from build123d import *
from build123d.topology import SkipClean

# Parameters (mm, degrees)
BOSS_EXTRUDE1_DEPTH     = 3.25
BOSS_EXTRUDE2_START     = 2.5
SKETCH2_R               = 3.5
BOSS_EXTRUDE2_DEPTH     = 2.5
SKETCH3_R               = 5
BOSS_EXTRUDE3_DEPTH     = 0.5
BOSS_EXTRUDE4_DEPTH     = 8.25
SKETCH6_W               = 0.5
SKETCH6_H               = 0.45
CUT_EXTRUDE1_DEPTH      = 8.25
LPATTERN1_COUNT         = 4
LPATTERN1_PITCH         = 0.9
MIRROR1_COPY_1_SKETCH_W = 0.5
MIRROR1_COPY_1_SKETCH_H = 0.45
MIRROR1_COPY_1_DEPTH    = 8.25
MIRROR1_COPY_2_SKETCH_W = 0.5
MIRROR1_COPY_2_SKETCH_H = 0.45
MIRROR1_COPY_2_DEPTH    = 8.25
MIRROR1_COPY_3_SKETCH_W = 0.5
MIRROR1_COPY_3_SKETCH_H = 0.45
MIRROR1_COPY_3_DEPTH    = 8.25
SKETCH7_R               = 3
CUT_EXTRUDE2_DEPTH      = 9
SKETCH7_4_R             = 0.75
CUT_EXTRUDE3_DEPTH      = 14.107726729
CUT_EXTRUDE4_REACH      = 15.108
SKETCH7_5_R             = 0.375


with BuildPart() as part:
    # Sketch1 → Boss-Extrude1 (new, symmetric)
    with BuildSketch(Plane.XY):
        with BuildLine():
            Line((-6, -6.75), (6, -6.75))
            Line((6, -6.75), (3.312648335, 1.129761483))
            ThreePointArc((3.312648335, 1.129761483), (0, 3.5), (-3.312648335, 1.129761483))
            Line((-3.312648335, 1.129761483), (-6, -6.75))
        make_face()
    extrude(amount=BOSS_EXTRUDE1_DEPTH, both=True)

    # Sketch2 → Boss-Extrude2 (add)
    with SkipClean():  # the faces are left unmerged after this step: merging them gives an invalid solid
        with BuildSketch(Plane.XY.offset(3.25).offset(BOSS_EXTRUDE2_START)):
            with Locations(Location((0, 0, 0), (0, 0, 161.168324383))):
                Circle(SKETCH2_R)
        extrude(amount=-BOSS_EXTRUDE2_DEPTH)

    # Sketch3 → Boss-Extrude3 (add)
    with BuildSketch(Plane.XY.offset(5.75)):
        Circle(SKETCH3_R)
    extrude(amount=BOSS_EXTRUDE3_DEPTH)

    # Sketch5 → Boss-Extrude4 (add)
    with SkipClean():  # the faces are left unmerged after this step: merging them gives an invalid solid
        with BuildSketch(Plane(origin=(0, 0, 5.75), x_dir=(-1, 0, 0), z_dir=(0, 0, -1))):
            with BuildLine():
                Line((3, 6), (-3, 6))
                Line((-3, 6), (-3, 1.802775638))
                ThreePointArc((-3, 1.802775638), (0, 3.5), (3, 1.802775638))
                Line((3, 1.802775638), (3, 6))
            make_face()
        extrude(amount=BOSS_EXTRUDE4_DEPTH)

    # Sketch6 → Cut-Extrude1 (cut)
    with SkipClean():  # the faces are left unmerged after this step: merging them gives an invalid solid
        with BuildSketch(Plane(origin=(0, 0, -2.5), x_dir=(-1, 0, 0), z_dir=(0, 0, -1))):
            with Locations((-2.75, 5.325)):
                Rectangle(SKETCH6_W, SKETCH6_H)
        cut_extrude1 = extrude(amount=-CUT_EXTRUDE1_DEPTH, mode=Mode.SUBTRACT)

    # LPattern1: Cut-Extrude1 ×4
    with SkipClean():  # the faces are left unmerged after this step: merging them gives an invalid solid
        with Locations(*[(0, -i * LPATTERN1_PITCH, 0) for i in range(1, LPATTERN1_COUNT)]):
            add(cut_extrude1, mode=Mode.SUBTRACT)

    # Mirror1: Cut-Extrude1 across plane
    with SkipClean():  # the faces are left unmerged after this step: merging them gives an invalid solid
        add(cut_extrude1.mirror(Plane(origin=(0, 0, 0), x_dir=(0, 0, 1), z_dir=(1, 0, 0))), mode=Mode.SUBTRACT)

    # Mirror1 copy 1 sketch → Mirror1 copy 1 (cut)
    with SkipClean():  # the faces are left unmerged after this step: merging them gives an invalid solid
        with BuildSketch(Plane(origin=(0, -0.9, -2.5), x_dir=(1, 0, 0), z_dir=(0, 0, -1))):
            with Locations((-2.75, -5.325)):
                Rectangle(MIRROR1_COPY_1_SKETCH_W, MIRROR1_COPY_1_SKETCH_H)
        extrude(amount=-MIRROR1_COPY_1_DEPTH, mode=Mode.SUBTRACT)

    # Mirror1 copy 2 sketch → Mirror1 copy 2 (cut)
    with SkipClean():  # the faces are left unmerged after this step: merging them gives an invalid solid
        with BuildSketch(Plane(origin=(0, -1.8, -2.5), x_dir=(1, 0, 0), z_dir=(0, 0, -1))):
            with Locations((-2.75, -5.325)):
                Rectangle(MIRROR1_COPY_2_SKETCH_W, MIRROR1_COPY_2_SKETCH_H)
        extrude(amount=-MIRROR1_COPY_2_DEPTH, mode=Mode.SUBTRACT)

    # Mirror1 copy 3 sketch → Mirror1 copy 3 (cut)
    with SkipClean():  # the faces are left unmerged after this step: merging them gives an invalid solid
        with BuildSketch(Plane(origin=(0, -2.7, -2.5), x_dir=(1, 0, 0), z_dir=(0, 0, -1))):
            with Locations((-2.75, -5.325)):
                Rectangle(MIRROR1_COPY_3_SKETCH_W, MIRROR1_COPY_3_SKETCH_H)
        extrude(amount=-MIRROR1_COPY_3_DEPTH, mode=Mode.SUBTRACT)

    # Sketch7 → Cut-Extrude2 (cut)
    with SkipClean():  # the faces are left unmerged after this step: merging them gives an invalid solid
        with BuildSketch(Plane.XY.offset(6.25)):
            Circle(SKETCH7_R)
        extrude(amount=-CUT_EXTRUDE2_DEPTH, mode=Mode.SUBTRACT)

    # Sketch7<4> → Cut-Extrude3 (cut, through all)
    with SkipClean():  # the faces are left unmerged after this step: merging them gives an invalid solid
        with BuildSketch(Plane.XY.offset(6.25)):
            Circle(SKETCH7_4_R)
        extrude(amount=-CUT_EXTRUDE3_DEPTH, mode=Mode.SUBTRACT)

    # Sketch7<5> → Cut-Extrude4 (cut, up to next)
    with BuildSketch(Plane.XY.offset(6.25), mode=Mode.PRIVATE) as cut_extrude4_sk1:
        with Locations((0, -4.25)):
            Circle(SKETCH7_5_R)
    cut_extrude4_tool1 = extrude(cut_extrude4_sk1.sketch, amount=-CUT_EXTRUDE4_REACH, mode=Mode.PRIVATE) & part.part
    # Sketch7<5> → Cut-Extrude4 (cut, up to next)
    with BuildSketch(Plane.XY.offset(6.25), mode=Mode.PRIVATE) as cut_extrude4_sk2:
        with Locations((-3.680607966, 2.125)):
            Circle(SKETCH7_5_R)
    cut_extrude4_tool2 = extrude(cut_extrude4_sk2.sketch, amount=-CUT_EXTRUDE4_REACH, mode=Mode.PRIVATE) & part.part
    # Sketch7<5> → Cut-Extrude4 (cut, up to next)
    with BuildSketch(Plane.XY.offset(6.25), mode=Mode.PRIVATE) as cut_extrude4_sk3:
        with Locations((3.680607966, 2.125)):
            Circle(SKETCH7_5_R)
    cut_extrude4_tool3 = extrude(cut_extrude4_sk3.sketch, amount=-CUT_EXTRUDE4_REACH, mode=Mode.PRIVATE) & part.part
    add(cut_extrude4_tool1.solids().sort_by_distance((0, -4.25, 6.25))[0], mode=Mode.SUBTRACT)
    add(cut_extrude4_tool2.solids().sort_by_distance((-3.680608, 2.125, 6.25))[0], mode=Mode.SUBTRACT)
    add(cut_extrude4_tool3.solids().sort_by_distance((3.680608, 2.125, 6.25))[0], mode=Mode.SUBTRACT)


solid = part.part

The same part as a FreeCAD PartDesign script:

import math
import FreeCAD as App
import Part
import Sketcher

V = App.Vector


def add_polygon(sketch, points):
    """Adds a closed chain of lines whose ends are joined by coincident constraints."""
    first, n = sketch.GeometryCount, len(points)
    for a, b in zip(points, points[1:] + points[:1]):
        sketch.addGeometry(Part.LineSegment(App.Vector(*a, 0), App.Vector(*b, 0)), False)
    for i in range(n):
        sketch.addConstraint(Sketcher.Constraint("Coincident", first + i, 2, first + (i + 1) % n, 1))

doc = App.newDocument("Part")
body = doc.addObject("PartDesign::Body", "Body")

# Sketch on XY plane
sketch1 = doc.addObject("Sketcher::SketchObject", "Sketch")
body.addObject(sketch1)
sketch1.AttachmentSupport = (doc.XY_Plane, [""])
sketch1.MapMode = "FlatFace"
sketch1.addGeometry(Part.LineSegment(V(-6, -6.8, 0), V(6, -6.8, 0)), False)
sketch1.addGeometry(Part.LineSegment(V(6, -6.8, 0), V(3.3, 1.1, 0)), False)
sketch1.addGeometry(Part.ArcOfCircle(Part.Circle(V(0, 0, 0), V(0, 0, 1), 3.5), math.radians(19), math.radians(161)), False)
sketch1.addGeometry(Part.LineSegment(V(-3.3, 1.1, 0), V(-6, -6.8, 0)), False)
sketch1.addConstraint(Sketcher.Constraint("Coincident", 0, 2, 1, 1))
sketch1.addConstraint(Sketcher.Constraint("Tangent", 1, 2, 2, 1))
sketch1.addConstraint(Sketcher.Constraint("Tangent", 2, 2, 3, 1))
sketch1.addConstraint(Sketcher.Constraint("Coincident", 3, 2, 0, 1))
sketch1.addConstraint(Sketcher.Constraint("Horizontal", 0))
sketch1.addConstraint(Sketcher.Constraint("Coincident", 2, 3, -1, 1))
sketch1.addConstraint(Sketcher.Constraint("Horizontal", 1, 2, 2, 2))
sketch1.addConstraint(Sketcher.Constraint("Radius", 2, 3.5))
sketch1.addConstraint(Sketcher.Constraint("DistanceX", 0, 1, 0, 2, 12.0))
sketch1.addConstraint(Sketcher.Constraint("DistanceY", 0, 2, -1, 1, 6.75))
pad1 = doc.addObject("PartDesign::Pad", "Pad")
body.addObject(pad1)
pad1.Profile = sketch1
pad1.Length = 6.5
pad1.Midplane = True

# Sketch on XY plane
sketch2 = doc.addObject("Sketcher::SketchObject", "Sketch001")
body.addObject(sketch2)
sketch2.AttachmentSupport = (doc.XY_Plane, [""])
sketch2.MapMode = "FlatFace"
sketch2.AttachmentOffset = App.Placement(V(0, 0, 5.75), App.Rotation())
sketch2.addGeometry(Part.Circle(V(0, 0, 0), V(0, 0, 1), 3.5), False)
sketch2.addConstraint(Sketcher.Constraint("Coincident", 0, 3, -1, 1))
sketch2.addConstraint(Sketcher.Constraint("Diameter", 0, 7.0))
pad2 = doc.addObject("PartDesign::Pad", "Pad001")
body.addObject(pad2)
pad2.Profile = sketch2
pad2.Length = 2.5
pad2.Reversed = True

# Sketch on XY plane
sketch3 = doc.addObject("Sketcher::SketchObject", "Sketch002")
body.addObject(sketch3)
sketch3.AttachmentSupport = (doc.XY_Plane, [""])
sketch3.MapMode = "FlatFace"
sketch3.AttachmentOffset = App.Placement(V(0, 0, 5.75), App.Rotation())
sketch3.addGeometry(Part.Circle(V(0, 0, 0), V(0, 0, 1), 5), False)
sketch3.addConstraint(Sketcher.Constraint("Coincident", 0, 3, -1, 1))
sketch3.addConstraint(Sketcher.Constraint("Diameter", 0, 10.0))
pad3 = doc.addObject("PartDesign::Pad", "Pad002")
body.addObject(pad3)
pad3.Profile = sketch3
pad3.Length = 0.5

# Sketch on XY plane
sketch4 = doc.addObject("Sketcher::SketchObject", "Sketch003")
body.addObject(sketch4)
sketch4.AttachmentSupport = (doc.XY_Plane, [""])
sketch4.MapMode = "FlatFace"
sketch4.AttachmentOffset = App.Placement(V(0, 0, 5.75), App.Rotation())
sketch4.addGeometry(Part.LineSegment(V(-3, 6, 0), V(3, 6, 0)), False)
sketch4.addGeometry(Part.LineSegment(V(3, 6, 0), V(3, 1.8, 0)), False)
sketch4.addGeometry(Part.ArcOfCircle(Part.Circle(V(0, 0, 0), V(0, 0, 1), 3.5), math.radians(31), math.radians(149)), False)
sketch4.addGeometry(Part.LineSegment(V(-3, 1.8, 0), V(-3, 6, 0)), False)
sketch4.addConstraint(Sketcher.Constraint("Coincident", 0, 2, 1, 1))
sketch4.addConstraint(Sketcher.Constraint("Coincident", 1, 2, 2, 1))
sketch4.addConstraint(Sketcher.Constraint("Coincident", 2, 2, 3, 1))
sketch4.addConstraint(Sketcher.Constraint("Coincident", 3, 2, 0, 1))
sketch4.addConstraint(Sketcher.Constraint("Horizontal", 0))
sketch4.addConstraint(Sketcher.Constraint("Vertical", 1))
sketch4.addConstraint(Sketcher.Constraint("Vertical", 3))
sketch4.addConstraint(Sketcher.Constraint("Coincident", 2, 3, -1, 1))
sketch4.addConstraint(Sketcher.Constraint("Horizontal", 1, 2, 2, 2))
sketch4.addConstraint(Sketcher.Constraint("Radius", 2, 3.5))
sketch4.addConstraint(Sketcher.Constraint("DistanceX", 0, 1, 0, 2, 6.0))
sketch4.addConstraint(Sketcher.Constraint("DistanceY", -1, 1, 0, 2, 6.0))
pad4 = doc.addObject("PartDesign::Pad", "Pad003")
body.addObject(pad4)
pad4.Profile = sketch4
pad4.Length = 8.25
pad4.Reversed = True

# Sketch on XY plane
sketch5 = doc.addObject("Sketcher::SketchObject", "Sketch004")
body.addObject(sketch5)
sketch5.AttachmentSupport = (doc.XY_Plane, [""])
sketch5.MapMode = "FlatFace"
sketch5.AttachmentOffset = App.Placement(V(0, 0, -2.5), App.Rotation())
add_polygon(sketch5, [(3, 5.55), (3, 5.1), (2.5, 5.1), (2.5, 5.55)])  # lines 0-3
sketch5.addConstraint(Sketcher.Constraint("Vertical", 0))
sketch5.addConstraint(Sketcher.Constraint("Horizontal", 1))
sketch5.addConstraint(Sketcher.Constraint("Vertical", 2))
sketch5.addConstraint(Sketcher.Constraint("Horizontal", 3))
sketch5.addConstraint(Sketcher.Constraint("DistanceX", 1, 2, 1, 1, 0.5))
sketch5.addConstraint(Sketcher.Constraint("DistanceX", -1, 1, 0, 2, 3.0))
sketch5.addConstraint(Sketcher.Constraint("DistanceY", 0, 2, 0, 1, 0.45))
sketch5.addConstraint(Sketcher.Constraint("DistanceY", -1, 1, 0, 2, 5.1))
pocket1 = doc.addObject("PartDesign::Pocket", "Pocket")
body.addObject(pocket1)
pocket1.Profile = sketch5
pocket1.Length = 8.25
pocket1.Reversed = True
doc.recompute()

linearpattern = doc.addObject("PartDesign::LinearPattern", "LinearPattern")
body.addObject(linearpattern)
linearpattern.Originals = [pocket1]
linearpattern.Direction = (doc.Y_Axis, [""])
linearpattern.Mode = "offset"
linearpattern.Offset = 0.9
linearpattern.Occurrences = 4
linearpattern.Reversed = True
body.Tip = linearpattern
doc.recompute()

mirrored = doc.addObject("PartDesign::Mirrored", "Mirrored")
body.addObject(mirrored)
mirrored.Originals = [pocket1]
mirrored.MirrorPlane = (doc.YZ_Plane, [""])
body.Tip = mirrored

# Sketch on XY plane
sketch6 = doc.addObject("Sketcher::SketchObject", "Sketch005")
body.addObject(sketch6)
sketch6.AttachmentSupport = (doc.XY_Plane, [""])
sketch6.MapMode = "FlatFace"
sketch6.AttachmentOffset = App.Placement(V(0, 0, -2.5), App.Rotation())
add_polygon(sketch6, [(-3, 4.2), (-3, 4.65), (-2.5, 4.65), (-2.5, 4.2)])  # lines 0-3
sketch6.addConstraint(Sketcher.Constraint("Vertical", 0))
sketch6.addConstraint(Sketcher.Constraint("Horizontal", 1))
sketch6.addConstraint(Sketcher.Constraint("Vertical", 2))
sketch6.addConstraint(Sketcher.Constraint("Horizontal", 3))
sketch6.addConstraint(Sketcher.Constraint("DistanceX", 1, 1, 1, 2, 0.5))
sketch6.addConstraint(Sketcher.Constraint("DistanceX", 0, 2, -1, 1, 3.0))
sketch6.addConstraint(Sketcher.Constraint("DistanceY", 0, 1, 0, 2, 0.45))
sketch6.addConstraint(Sketcher.Constraint("DistanceY", -1, 1, 2, 2, 4.2))
pocket2 = doc.addObject("PartDesign::Pocket", "Pocket001")
body.addObject(pocket2)
pocket2.Profile = sketch6
pocket2.Length = 8.25
pocket2.Reversed = True

# Sketch on XY plane
sketch7 = doc.addObject("Sketcher::SketchObject", "Sketch006")
body.addObject(sketch7)
sketch7.AttachmentSupport = (doc.XY_Plane, [""])
sketch7.MapMode = "FlatFace"
sketch7.AttachmentOffset = App.Placement(V(0, 0, -2.5), App.Rotation())
add_polygon(sketch7, [(-3, 3.3), (-3, 3.75), (-2.5, 3.75), (-2.5, 3.3)])  # lines 0-3
sketch7.addConstraint(Sketcher.Constraint("Vertical", 0))
sketch7.addConstraint(Sketcher.Constraint("Horizontal", 1))
sketch7.addConstraint(Sketcher.Constraint("Vertical", 2))
sketch7.addConstraint(Sketcher.Constraint("Horizontal", 3))
sketch7.addConstraint(Sketcher.Constraint("DistanceX", 1, 1, 1, 2, 0.5))
sketch7.addConstraint(Sketcher.Constraint("DistanceX", 0, 2, -1, 1, 3.0))
sketch7.addConstraint(Sketcher.Constraint("DistanceY", 0, 1, 0, 2, 0.45))
sketch7.addConstraint(Sketcher.Constraint("DistanceY", -1, 1, 2, 2, 3.3))
pocket3 = doc.addObject("PartDesign::Pocket", "Pocket002")
body.addObject(pocket3)
pocket3.Profile = sketch7
pocket3.Length = 8.25
pocket3.Reversed = True

# Sketch on XY plane
sketch8 = doc.addObject("Sketcher::SketchObject", "Sketch007")
body.addObject(sketch8)
sketch8.AttachmentSupport = (doc.XY_Plane, [""])
sketch8.MapMode = "FlatFace"
sketch8.AttachmentOffset = App.Placement(V(0, 0, -2.5), App.Rotation())
add_polygon(sketch8, [(-3, 2.4), (-3, 2.85), (-2.5, 2.85), (-2.5, 2.4)])  # lines 0-3
sketch8.addConstraint(Sketcher.Constraint("Vertical", 0))
sketch8.addConstraint(Sketcher.Constraint("Horizontal", 1))
sketch8.addConstraint(Sketcher.Constraint("Vertical", 2))
sketch8.addConstraint(Sketcher.Constraint("Horizontal", 3))
sketch8.addConstraint(Sketcher.Constraint("DistanceX", 1, 1, 1, 2, 0.5))
sketch8.addConstraint(Sketcher.Constraint("DistanceX", 0, 2, -1, 1, 3.0))
sketch8.addConstraint(Sketcher.Constraint("DistanceY", 0, 1, 0, 2, 0.45))
sketch8.addConstraint(Sketcher.Constraint("DistanceY", -1, 1, 2, 2, 2.4))
pocket4 = doc.addObject("PartDesign::Pocket", "Pocket003")
body.addObject(pocket4)
pocket4.Profile = sketch8
pocket4.Length = 8.25
pocket4.Reversed = True

# Sketch on XY plane
sketch9 = doc.addObject("Sketcher::SketchObject", "Sketch008")
body.addObject(sketch9)
sketch9.AttachmentSupport = (doc.XY_Plane, [""])
sketch9.MapMode = "FlatFace"
sketch9.AttachmentOffset = App.Placement(V(0, 0, 6.25), App.Rotation())
sketch9.addGeometry(Part.Circle(V(0, 0, 0), V(0, 0, 1), 3), False)
sketch9.addConstraint(Sketcher.Constraint("Coincident", 0, 3, -1, 1))
sketch9.addConstraint(Sketcher.Constraint("Diameter", 0, 6.0))
pocket5 = doc.addObject("PartDesign::Pocket", "Pocket004")
body.addObject(pocket5)
pocket5.Profile = sketch9
pocket5.Length = 9

# Sketch on XY plane
sketch10 = doc.addObject("Sketcher::SketchObject", "Sketch009")
body.addObject(sketch10)
sketch10.AttachmentSupport = (doc.XY_Plane, [""])
sketch10.MapMode = "FlatFace"
sketch10.AttachmentOffset = App.Placement(V(0, 0, 6.25), App.Rotation())
sketch10.addGeometry(Part.Circle(V(0, 0, 0), V(0, 0, 1), 0.8), False)
sketch10.addConstraint(Sketcher.Constraint("Coincident", 0, 3, -1, 1))
sketch10.addConstraint(Sketcher.Constraint("Diameter", 0, 1.5))
pocket6 = doc.addObject("PartDesign::Pocket", "Pocket005")
body.addObject(pocket6)
pocket6.Profile = sketch10
pocket6.Type = "ThroughAll"

# Sketch on XY plane
sketch11 = doc.addObject("Sketcher::SketchObject", "Sketch010")
body.addObject(sketch11)
sketch11.AttachmentSupport = (doc.XY_Plane, [""])
sketch11.MapMode = "FlatFace"
sketch11.AttachmentOffset = App.Placement(V(0, 0, 6.25), App.Rotation())
sketch11.addGeometry(Part.Circle(V(0, -4.25, 0), V(0, 0, 1), 0.38), False)
sketch11.addConstraint(Sketcher.Constraint("PointOnObject", 0, 3, -2))
sketch11.addConstraint(Sketcher.Constraint("Diameter", 0, 0.75))
sketch11.addConstraint(Sketcher.Constraint("DistanceY", 0, 3, -1, 1, 4.25))
pocket7 = doc.addObject("PartDesign::Pocket", "Pocket006")
body.addObject(pocket7)
pocket7.Profile = sketch11
pocket7.Type = "UpToFirst"

# Sketch on XY plane
sketch12 = doc.addObject("Sketcher::SketchObject", "Sketch011")
body.addObject(sketch12)
sketch12.AttachmentSupport = (doc.XY_Plane, [""])
sketch12.MapMode = "FlatFace"
sketch12.AttachmentOffset = App.Placement(V(0, 0, 6.25), App.Rotation())
sketch12.addGeometry(Part.Circle(V(-3.68, 2.12, 0), V(0, 0, 1), 0.38), False)
sketch12.addConstraint(Sketcher.Constraint("Diameter", 0, 0.75))
sketch12.addConstraint(Sketcher.Constraint("DistanceY", -1, 1, 0, 3, 2.125))
sketch12.addConstraint(Sketcher.Constraint("DistanceX", 0, 3, -1, 1, 3.680608))
pocket8 = doc.addObject("PartDesign::Pocket", "Pocket007")
body.addObject(pocket8)
pocket8.Profile = sketch12
pocket8.Type = "UpToFirst"

# Sketch on XY plane
sketch13 = doc.addObject("Sketcher::SketchObject", "Sketch012")
body.addObject(sketch13)
sketch13.AttachmentSupport = (doc.XY_Plane, [""])
sketch13.MapMode = "FlatFace"
sketch13.AttachmentOffset = App.Placement(V(0, 0, 6.25), App.Rotation())
sketch13.addGeometry(Part.Circle(V(3.68, 2.12, 0), V(0, 0, 1), 0.38), False)
sketch13.addConstraint(Sketcher.Constraint("Diameter", 0, 0.75))
sketch13.addConstraint(Sketcher.Constraint("DistanceY", -1, 1, 0, 3, 2.125))
sketch13.addConstraint(Sketcher.Constraint("DistanceX", -1, 1, 0, 3, 3.680608))
pocket9 = doc.addObject("PartDesign::Pocket", "Pocket008")
body.addObject(pocket9)
pocket9.Profile = sketch13
pocket9.Type = "UpToFirst"

doc.recompute()
